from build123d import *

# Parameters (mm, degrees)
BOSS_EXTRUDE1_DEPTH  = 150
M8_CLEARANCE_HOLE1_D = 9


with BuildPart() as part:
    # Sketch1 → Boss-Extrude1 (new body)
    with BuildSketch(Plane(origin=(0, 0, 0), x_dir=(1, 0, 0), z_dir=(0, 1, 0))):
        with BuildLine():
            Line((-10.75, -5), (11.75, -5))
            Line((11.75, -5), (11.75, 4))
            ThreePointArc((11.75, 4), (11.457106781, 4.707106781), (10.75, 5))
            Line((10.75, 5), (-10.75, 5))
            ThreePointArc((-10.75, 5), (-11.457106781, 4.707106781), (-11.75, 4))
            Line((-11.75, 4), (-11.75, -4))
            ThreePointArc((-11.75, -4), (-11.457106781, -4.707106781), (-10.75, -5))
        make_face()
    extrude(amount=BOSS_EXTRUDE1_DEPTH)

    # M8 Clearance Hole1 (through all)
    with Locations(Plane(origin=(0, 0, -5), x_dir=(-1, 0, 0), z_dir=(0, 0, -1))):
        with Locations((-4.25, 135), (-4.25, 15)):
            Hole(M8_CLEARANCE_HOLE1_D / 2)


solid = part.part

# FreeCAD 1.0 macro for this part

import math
import FreeCAD as App
import Part
import Sketcher
Q = App.Units.Quantity

doc = App.newDocument("Part")
params = doc.addObject("Spreadsheet::Sheet", "Params")
for row, (alias, value) in enumerate([
    ("sketch1_radius", "1 mm"),
    ("sketch1_height", "9 mm"),
    ("sketch1_width", "22.5 mm"),
    ("pad1_length", "150 mm"),
    ("sketch2_diameter", "9 mm"),
    ("hole_diameter", "9 mm"),
], start=1):
    params.set(f"A{row}", alias)
    params.set(f"B{row}", "=" + value)
    params.setAlias(f"B{row}", alias)

body = doc.addObject("PartDesign::Body", "Body")

# Sketch on XZ plane
sketch1 = body.newObject("Sketcher::SketchObject", "Sketch")
sketch1.AttachmentSupport = (doc.getObject("XZ_Plane"), [""])
sketch1.MapMode = "FlatFace"
sketch1.addGeometry(Part.LineSegment(App.Vector(-10.8, 5, 0), App.Vector(11.8, 5, 0)), False)
sketch1.addGeometry(Part.LineSegment(App.Vector(11.8, 5, 0), App.Vector(11.8, -4, 0)), False)
sketch1.addGeometry(Part.ArcOfCircle(Part.Circle(App.Vector(10.7, -4, 0), App.Vector(0, 0, 1), 1), math.radians(-90), math.radians(0)), False)
sketch1.addGeometry(Part.LineSegment(App.Vector(10.8, -5, 0), App.Vector(-10.8, -5, 0)), False)
sketch1.addGeometry(Part.ArcOfCircle(Part.Circle(App.Vector(-10.7, -4, 0), App.Vector(0, 0, 1), 1), math.radians(-180), math.radians(-90)), False)
sketch1.addGeometry(Part.LineSegment(App.Vector(-11.8, -4, 0), App.Vector(-11.8, 4, 0)), False)
sketch1.addGeometry(Part.ArcOfCircle(Part.Circle(App.Vector(-10.7, 4, 0), App.Vector(0, 0, 1), 1), math.radians(90), math.radians(180)), False)
sketch1.addConstraint(Sketcher.Constraint("Coincident", 0, 2, 1, 1))
sketch1.addConstraint(Sketcher.Constraint("Tangent", 1, 2, 2, 2))
sketch1.addConstraint(Sketcher.Constraint("Tangent", 2, 1, 3, 1))
sketch1.addConstraint(Sketcher.Constraint("Tangent", 3, 2, 4, 2))
sketch1.addConstraint(Sketcher.Constraint("Tangent", 4, 1, 5, 1))
sketch1.addConstraint(Sketcher.Constraint("Tangent", 5, 2, 6, 2))
sketch1.addConstraint(Sketcher.Constraint("Tangent", 6, 1, 0, 1))
sketch1.addConstraint(Sketcher.Constraint("Horizontal", 0))
sketch1.addConstraint(Sketcher.Constraint("Vertical", 1))
sketch1.addConstraint(Sketcher.Constraint("Horizontal", 3))
sketch1.addConstraint(Sketcher.Constraint("Vertical", 5))
sketch1.addConstraint(Sketcher.Constraint("Equal", 2, 4))
sketch1.addConstraint(Sketcher.Constraint("Equal", 4, 6))
sketch1.addConstraint(Sketcher.Constraint("Symmetric", 2, 3, 6, 3, -1, 1))
sketch1.addConstraint(Sketcher.Constraint("Radius", 2, Q("1 mm")))
sketch1.addConstraint(Sketcher.Constraint("DistanceY", 1, 2, 1, 1, Q("9 mm")))
sketch1.addConstraint(Sketcher.Constraint("DistanceX", 0, 1, 0, 2, Q("22.5 mm")))
sketch1.setExpression("Constraints[14]", "Params.sketch1_radius")
sketch1.setExpression("Constraints[15]", "Params.sketch1_height")
sketch1.setExpression("Constraints[16]", "Params.sketch1_width")
pad1 = body.newObject("PartDesign::Pad", "Pad")
pad1.Profile = sketch1
pad1.setExpression("Length", "Params.pad1_length")
pad1.Reversed = True

# Sketch on XY plane
sketch2 = body.newObject("Sketcher::SketchObject", "Sketch001")
sketch2.AttachmentSupport = (doc.getObject("XY_Plane"), [""])
sketch2.MapMode = "FlatFace"
sketch2.AttachmentOffset = App.Placement(App.Vector(0, 0, -5), App.Rotation())
sketch2.addGeometry(Part.Circle(App.Vector(4.2, 135, 0), App.Vector(0, 0, 1), 4.5), False)
sketch2.addGeometry(Part.Circle(App.Vector(4.2, 15, 0), App.Vector(0, 0, 1), 4.5), False)
sketch2.addConstraint(Sketcher.Constraint("Equal", 0, 1))
sketch2.addConstraint(Sketcher.Constraint("Vertical", 0, 3, 1, 3))
sketch2.addConstraint(Sketcher.Constraint("Diameter", 0, Q("9 mm")))
sketch2.addConstraint(Sketcher.Constraint("DistanceY", -1, 1, 0, 3, Q("135 mm")))
sketch2.addConstraint(Sketcher.Constraint("DistanceY", -1, 1, 1, 3, Q("15 mm")))
sketch2.addConstraint(Sketcher.Constraint("DistanceX", -1, 1, 0, 3, Q("4.25 mm")))
sketch2.setExpression("Constraints[2]", "Params.sketch2_diameter")
doc.recompute()
hole = body.newObject("PartDesign::Hole", "Hole")
hole.Profile = sketch2
hole.ThreadType = "None"
hole.setExpression("Diameter", "Params.hole_diameter")
hole.DepthType = "ThroughAll"
hole.Reversed = True

doc.recompute()
